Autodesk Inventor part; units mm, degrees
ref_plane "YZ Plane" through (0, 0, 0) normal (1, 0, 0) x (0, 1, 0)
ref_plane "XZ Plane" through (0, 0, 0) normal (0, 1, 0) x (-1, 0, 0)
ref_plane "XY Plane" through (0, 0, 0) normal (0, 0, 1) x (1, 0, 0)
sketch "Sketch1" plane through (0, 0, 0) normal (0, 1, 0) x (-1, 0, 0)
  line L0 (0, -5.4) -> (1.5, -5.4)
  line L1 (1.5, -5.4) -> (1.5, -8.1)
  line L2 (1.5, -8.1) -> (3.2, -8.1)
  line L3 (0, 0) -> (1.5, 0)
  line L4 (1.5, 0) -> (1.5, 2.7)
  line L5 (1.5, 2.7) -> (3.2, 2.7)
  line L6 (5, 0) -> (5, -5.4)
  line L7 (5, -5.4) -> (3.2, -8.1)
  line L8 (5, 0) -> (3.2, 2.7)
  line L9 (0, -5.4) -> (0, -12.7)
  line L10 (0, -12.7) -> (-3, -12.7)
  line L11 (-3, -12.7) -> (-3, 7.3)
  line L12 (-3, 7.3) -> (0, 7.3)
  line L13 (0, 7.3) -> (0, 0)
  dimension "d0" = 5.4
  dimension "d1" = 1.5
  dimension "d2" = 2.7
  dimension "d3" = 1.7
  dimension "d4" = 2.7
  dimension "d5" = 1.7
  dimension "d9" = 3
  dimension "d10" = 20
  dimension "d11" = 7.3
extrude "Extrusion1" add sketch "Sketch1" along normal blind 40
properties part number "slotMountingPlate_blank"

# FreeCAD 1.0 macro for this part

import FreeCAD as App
import Part
import Sketcher

V = App.Vector


def add_polygon(sketch, points):
    """Adds a closed chain of lines whose ends are joined by coincident constraints."""
    first, n = sketch.GeometryCount, len(points)
    for a, b in zip(points, points[1:] + points[:1]):
        sketch.addGeometry(Part.LineSegment(App.Vector(*a, 0), App.Vector(*b, 0)), False)
    for i in range(n):
        sketch.addConstraint(Sketcher.Constraint("Coincident", first + i, 2, first + (i + 1) % n, 1))

doc = App.newDocument("Part")
params = doc.addObject("Spreadsheet::Sheet", "Params")
for row, (alias, value) in enumerate([
    ("sketch1_width", "3 mm"),
    ("sketch1_height", "20 mm"),
    ("sketch1_width2", "1.5 mm"),
    ("sketch1_width3", "1.7 mm"),
    ("sketch1_height2", "7.3 mm"),
    ("pad1_length", "40 mm"),
], start=1):
    params.set(f"A{row}", alias)
    params.set(f"B{row}", "=" + value)
    params.setAlias(f"B{row}", alias)

body = doc.addObject("PartDesign::Body", "Body")

sketch1 = doc.addObject("Sketcher::SketchObject", "Sketch")
body.addObject(sketch1)
sketch1.AttachmentSupport = (doc.XZ_Plane, [""])
sketch1.MapMode = "FlatFace"
add_polygon(sketch1, [(0, -12.7), (0, -5.4), (-1.5, -5.4), (-1.5, -8.1), (-3.2, -8.1), (-5, -5.4), (-5, 0), (-3.2, 2.7), (-1.5, 2.7), (-1.5, 0), (0, 0), (0, 7.3), (3, 7.3), (3, -12.7)])
sketch1.addConstraint([
    Sketcher.Constraint("Vertical", 0),
    Sketcher.Constraint("Horizontal", 1),
    Sketcher.Constraint("Vertical", 2),
    Sketcher.Constraint("Horizontal", 3),
    Sketcher.Constraint("Vertical", 5),
    Sketcher.Constraint("Horizontal", 7),
    Sketcher.Constraint("Vertical", 8),
    Sketcher.Constraint("Horizontal", 9),
    Sketcher.Constraint("Vertical", 10),
    Sketcher.Constraint("Horizontal", 11),
    Sketcher.Constraint("Vertical", 12),
    Sketcher.Constraint("Horizontal", 13),
    Sketcher.Constraint("Coincident", 9, 2, -1, 1),
    Sketcher.Constraint("PointOnObject", 0, 2, -2),
    Sketcher.Constraint("PointOnObject", 5, 2, -1),
    Sketcher.Constraint("Horizontal", 1, 2, 4, 2),
    Sketcher.Constraint("Vertical", 3, 2, 6, 2),
    Sketcher.Constraint("Vertical", 2, 2, 7, 2),
    Sketcher.Constraint("Equal", 2, 8),
    Sketcher.Constraint("Equal", 0, 10),
    Sketcher.Constraint("DistanceX", 11, 1, 11, 2, 3.0),
    Sketcher.Constraint("DistanceY", 12, 2, 12, 1, 20.0),
    Sketcher.Constraint("DistanceX", 1, 2, 1, 1, 1.5),
    Sketcher.Constraint("DistanceX", 3, 2, 3, 1, 1.7),
    Sketcher.Constraint("DistanceY", 0, 1, 0, 2, 7.3),
    Sketcher.Constraint("DistanceY", 2, 2, 2, 1, 2.7),
    Sketcher.Constraint("DistanceX", 4, 2, -1, 1, 5.0),
])
sketch1.setExpression("Constraints[34]", "Params.sketch1_width")
sketch1.setExpression("Constraints[35]", "Params.sketch1_height")
sketch1.setExpression("Constraints[36]", "Params.sketch1_width2")
sketch1.setExpression("Constraints[37]", "Params.sketch1_width3")
sketch1.setExpression("Constraints[38]", "Params.sketch1_height2")
pad1 = doc.addObject("PartDesign::Pad", "Pad")
body.addObject(pad1)
pad1.Profile = sketch1
pad1.setExpression("Length", "Params.pad1_length")
pad1.Reversed = True

doc.recompute()
